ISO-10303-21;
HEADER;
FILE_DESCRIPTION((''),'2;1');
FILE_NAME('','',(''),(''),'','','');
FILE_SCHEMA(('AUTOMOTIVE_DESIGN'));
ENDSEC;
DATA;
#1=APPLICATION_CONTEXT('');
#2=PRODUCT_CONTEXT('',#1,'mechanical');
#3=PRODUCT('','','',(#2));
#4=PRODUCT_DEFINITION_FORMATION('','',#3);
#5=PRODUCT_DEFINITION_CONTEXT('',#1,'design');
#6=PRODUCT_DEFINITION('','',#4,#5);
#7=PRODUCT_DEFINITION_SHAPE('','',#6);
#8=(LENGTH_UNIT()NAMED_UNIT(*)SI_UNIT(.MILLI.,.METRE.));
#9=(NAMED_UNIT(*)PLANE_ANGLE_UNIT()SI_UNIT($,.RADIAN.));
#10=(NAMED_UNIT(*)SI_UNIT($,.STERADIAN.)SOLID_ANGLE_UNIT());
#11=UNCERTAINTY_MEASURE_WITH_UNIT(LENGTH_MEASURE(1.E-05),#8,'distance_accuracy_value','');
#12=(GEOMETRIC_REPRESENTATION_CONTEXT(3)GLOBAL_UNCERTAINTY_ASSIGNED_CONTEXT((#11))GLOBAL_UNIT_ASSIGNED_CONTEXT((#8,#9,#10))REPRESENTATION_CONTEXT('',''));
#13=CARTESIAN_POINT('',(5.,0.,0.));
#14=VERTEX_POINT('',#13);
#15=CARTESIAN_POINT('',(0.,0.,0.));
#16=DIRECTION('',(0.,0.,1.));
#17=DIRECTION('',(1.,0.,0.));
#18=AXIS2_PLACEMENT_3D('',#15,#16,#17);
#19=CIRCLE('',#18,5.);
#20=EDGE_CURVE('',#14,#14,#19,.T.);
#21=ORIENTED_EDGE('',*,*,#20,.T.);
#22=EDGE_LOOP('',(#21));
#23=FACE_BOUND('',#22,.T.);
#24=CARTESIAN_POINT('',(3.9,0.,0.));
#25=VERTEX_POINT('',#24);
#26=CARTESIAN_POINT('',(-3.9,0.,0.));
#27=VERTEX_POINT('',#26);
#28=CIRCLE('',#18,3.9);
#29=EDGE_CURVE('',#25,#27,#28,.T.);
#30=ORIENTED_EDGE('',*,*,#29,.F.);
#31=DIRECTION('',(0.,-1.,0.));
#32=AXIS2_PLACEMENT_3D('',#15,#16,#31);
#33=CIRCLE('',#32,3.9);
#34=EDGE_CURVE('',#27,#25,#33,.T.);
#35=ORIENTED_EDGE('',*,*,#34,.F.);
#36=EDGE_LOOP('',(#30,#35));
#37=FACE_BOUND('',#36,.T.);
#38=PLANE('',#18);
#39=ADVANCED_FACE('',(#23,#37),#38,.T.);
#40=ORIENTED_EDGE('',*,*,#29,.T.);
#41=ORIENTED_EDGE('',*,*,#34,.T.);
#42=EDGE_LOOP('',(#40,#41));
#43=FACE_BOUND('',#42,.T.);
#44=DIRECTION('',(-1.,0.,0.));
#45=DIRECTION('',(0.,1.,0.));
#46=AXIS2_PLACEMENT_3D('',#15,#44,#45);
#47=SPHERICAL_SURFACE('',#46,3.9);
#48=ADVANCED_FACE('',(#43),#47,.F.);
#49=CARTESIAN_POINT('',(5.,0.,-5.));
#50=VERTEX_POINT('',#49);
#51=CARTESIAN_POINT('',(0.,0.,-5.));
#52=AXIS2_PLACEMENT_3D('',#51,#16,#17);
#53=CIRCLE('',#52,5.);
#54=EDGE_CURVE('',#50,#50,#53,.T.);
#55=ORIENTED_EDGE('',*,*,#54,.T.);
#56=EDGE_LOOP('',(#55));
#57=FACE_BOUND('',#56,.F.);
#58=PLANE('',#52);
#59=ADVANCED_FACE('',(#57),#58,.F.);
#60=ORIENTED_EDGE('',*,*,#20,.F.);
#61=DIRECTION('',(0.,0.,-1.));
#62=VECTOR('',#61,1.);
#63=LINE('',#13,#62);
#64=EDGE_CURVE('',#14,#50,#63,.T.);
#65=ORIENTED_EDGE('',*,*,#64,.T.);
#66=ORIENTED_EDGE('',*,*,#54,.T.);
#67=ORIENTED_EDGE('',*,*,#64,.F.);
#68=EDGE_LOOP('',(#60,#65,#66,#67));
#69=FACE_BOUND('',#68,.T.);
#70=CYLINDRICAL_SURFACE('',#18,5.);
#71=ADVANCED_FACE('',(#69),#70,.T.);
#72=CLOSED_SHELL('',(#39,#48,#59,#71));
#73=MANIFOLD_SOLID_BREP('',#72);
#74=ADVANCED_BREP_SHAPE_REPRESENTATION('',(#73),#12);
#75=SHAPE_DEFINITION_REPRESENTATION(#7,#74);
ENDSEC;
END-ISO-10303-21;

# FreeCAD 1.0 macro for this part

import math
import FreeCAD as App
import Part
import Sketcher

doc = App.newDocument("Part")
body = doc.addObject("PartDesign::Body", "Body")

sketch1 = doc.addObject("Sketcher::SketchObject", "Sketch")
body.addObject(sketch1)
sketch1.AttachmentSupport = (doc.XY_Plane, [""])
sketch1.MapMode = "FlatFace"
sketch1.addGeometry(Part.Circle(App.Vector(0, 0, 0), App.Vector(0, 0, 1), 5), False)
sketch1.addConstraint(Sketcher.Constraint("Coincident", 0, 3, -1, 1))
sketch1.addConstraint(Sketcher.Constraint("Diameter", 0, 10.0))
pad1 = doc.addObject("PartDesign::Pad", "Pad")
body.addObject(pad1)
pad1.Profile = sketch1
pad1.Length = 5
pad1.Reversed = True

sketch2 = doc.addObject("Sketcher::SketchObject", "Sketch001")
body.addObject(sketch2)
sketch2.AttachmentSupport = (doc.XY_Plane, [""])
sketch2.MapMode = "FlatFace"
sketch2.addGeometry(Part.LineSegment(App.Vector(-3.9, 0, 0), App.Vector(3.9, 0, 0)), False)
sketch2.addGeometry(Part.ArcOfCircle(Part.Circle(App.Vector(0, 0, 0), App.Vector(0, 0, 1), 3.9), math.radians(0), math.radians(180)), False)
sketch2.addConstraint(Sketcher.Constraint("Coincident", 0, 1, 1, 2))
sketch2.addConstraint(Sketcher.Constraint("Coincident", 1, 1, 0, 2))
sketch2.addConstraint(Sketcher.Constraint("Horizontal", 0))
sketch2.addConstraint(Sketcher.Constraint("Coincident", 1, 3, -1, 1))
sketch2.addConstraint(Sketcher.Constraint("PointOnObject", 0, 1, -1))
sketch2.addConstraint(Sketcher.Constraint("Radius", 1, 3.9))
groove = doc.addObject("PartDesign::Groove", "Groove")
body.addObject(groove)
groove.Profile = sketch2
groove.ReferenceAxis = (sketch2, ["H_Axis"])
groove.Angle = 360

doc.recompute()
